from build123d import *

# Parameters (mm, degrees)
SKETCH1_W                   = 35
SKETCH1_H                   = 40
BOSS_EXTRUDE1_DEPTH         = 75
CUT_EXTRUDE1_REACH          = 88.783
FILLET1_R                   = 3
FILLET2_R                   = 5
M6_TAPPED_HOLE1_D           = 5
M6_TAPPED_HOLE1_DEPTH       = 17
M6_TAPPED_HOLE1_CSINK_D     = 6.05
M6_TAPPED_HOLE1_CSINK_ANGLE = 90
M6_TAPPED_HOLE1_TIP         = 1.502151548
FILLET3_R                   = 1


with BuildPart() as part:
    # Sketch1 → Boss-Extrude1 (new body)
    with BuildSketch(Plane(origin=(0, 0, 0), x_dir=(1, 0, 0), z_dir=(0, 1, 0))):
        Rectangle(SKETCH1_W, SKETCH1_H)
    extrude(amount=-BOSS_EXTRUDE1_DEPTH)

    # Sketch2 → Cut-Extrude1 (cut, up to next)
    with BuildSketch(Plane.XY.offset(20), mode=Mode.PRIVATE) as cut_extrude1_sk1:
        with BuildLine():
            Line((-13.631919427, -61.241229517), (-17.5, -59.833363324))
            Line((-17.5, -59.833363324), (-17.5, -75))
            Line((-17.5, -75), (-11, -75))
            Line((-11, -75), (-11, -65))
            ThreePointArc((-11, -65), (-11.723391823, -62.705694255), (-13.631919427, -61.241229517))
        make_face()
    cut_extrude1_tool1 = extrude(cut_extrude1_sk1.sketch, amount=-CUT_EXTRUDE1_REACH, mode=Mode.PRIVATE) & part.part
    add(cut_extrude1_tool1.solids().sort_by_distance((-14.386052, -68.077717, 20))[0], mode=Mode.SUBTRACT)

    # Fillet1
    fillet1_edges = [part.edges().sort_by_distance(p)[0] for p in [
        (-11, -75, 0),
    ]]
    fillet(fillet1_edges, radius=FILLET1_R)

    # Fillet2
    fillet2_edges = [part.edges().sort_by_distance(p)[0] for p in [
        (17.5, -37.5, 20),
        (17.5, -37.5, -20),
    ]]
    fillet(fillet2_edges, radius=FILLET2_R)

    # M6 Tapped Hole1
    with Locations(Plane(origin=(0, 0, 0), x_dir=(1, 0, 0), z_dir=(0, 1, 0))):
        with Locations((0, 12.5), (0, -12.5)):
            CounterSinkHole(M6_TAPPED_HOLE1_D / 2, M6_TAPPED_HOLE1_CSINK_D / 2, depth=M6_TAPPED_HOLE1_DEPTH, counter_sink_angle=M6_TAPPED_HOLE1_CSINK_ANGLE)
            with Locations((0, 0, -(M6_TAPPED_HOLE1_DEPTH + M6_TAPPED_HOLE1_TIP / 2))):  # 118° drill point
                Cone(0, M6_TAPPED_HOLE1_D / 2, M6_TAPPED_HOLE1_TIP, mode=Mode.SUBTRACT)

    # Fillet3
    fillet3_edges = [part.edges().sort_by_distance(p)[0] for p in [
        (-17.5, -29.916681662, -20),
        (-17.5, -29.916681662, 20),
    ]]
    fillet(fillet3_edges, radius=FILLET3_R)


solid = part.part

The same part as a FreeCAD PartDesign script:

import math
import FreeCAD as App
import Part
import Sketcher

V = App.Vector
Q = App.Units.Quantity


def edges_at(feature, points):
    """Names of the edges that pass closest to the given points."""
    edges = feature.Shape.Edges
    near = lambda p: min(range(len(edges)), key=lambda i: edges[i].distToShape(Part.Vertex(*p))[0])
    return sorted({f"Edge{near(p) + 1}" for p in points})

doc = App.newDocument("Part")
body = doc.addObject("PartDesign::Body", "Body")

# Sketch on XZ plane
sketch1 = body.newObject("Sketcher::SketchObject", "Sketch")
sketch1.AttachmentSupport = (doc.getObject("XZ_Plane"), [""])
sketch1.MapMode = "FlatFace"
sketch1.addGeometry(Part.LineSegment(V(-18, -20, 0), V(-18, 20, 0)), False)
sketch1.addGeometry(Part.LineSegment(V(-18, 20, 0), V(18, 20, 0)), False)
sketch1.addGeometry(Part.LineSegment(V(18, 20, 0), V(18, -20, 0)), False)
sketch1.addGeometry(Part.LineSegment(V(18, -20, 0), V(-18, -20, 0)), False)
sketch1.addConstraint(Sketcher.Constraint("Coincident", 0, 2, 1, 1))
sketch1.addConstraint(Sketcher.Constraint("Coincident", 1, 2, 2, 1))
sketch1.addConstraint(Sketcher.Constraint("Coincident", 2, 2, 3, 1))
sketch1.addConstraint(Sketcher.Constraint("Coincident", 3, 2, 0, 1))
sketch1.addConstraint(Sketcher.Constraint("Vertical", 0))
sketch1.addConstraint(Sketcher.Constraint("Horizontal", 1))
sketch1.addConstraint(Sketcher.Constraint("Vertical", 2))
sketch1.addConstraint(Sketcher.Constraint("Horizontal", 3))
sketch1.addConstraint(Sketcher.Constraint("Symmetric", 0, 2, 2, 2, -1, 1))
sketch1.addConstraint(Sketcher.Constraint("DistanceX", 1, 1, 1, 2, Q("35 mm")))
sketch1.addConstraint(Sketcher.Constraint("DistanceY", 0, 1, 0, 2, Q("40 mm")))
pad1 = body.newObject("PartDesign::Pad", "Pad")
pad1.Profile = sketch1
pad1.Length = 75

# Sketch on XY plane
sketch2 = body.newObject("Sketcher::SketchObject", "Sketch001")
sketch2.AttachmentSupport = (doc.getObject("XY_Plane"), [""])
sketch2.MapMode = "FlatFace"
sketch2.AttachmentOffset = App.Placement(V(0, 0, 20), App.Rotation())
sketch2.addGeometry(Part.LineSegment(V(-13.6, -61.2, 0), V(-17.5, -59.8, 0)), False)
sketch2.addGeometry(Part.LineSegment(V(-17.5, -59.8, 0), V(-17.5, -75, 0)), False)
sketch2.addGeometry(Part.LineSegment(V(-17.5, -75, 0), V(-11, -75, 0)), False)
sketch2.addGeometry(Part.LineSegment(V(-11, -75, 0), V(-11, -65, 0)), False)
sketch2.addGeometry(Part.ArcOfCircle(Part.Circle(V(-15, -65, 0), V(0, 0, 1), 4), math.radians(0), math.radians(70)), False)
sketch2.addConstraint(Sketcher.Constraint("Coincident", 0, 2, 1, 1))
sketch2.addConstraint(Sketcher.Constraint("Coincident", 1, 2, 2, 1))
sketch2.addConstraint(Sketcher.Constraint("Coincident", 2, 2, 3, 1))
sketch2.addConstraint(Sketcher.Constraint("Tangent", 3, 2, 4, 1))
sketch2.addConstraint(Sketcher.Constraint("Tangent", 4, 2, 0, 1))
sketch2.addConstraint(Sketcher.Constraint("Vertical", 1))
sketch2.addConstraint(Sketcher.Constraint("Horizontal", 2))
sketch2.addConstraint(Sketcher.Constraint("Vertical", 3))
sketch2.addConstraint(Sketcher.Constraint("Radius", 4, Q("4 mm")))
sketch2.addConstraint(Sketcher.Constraint("DistanceY", 3, 1, 3, 2, Q("10 mm")))
sketch2.addConstraint(Sketcher.Constraint("Angle", 0, Q("160 deg")))
sketch2.addConstraint(Sketcher.Constraint("DistanceX", 2, 1, 2, 2, Q("6.5 mm")))
sketch2.addConstraint(Sketcher.Constraint("DistanceX", 4, 3, -1, 1, Q("15 mm")))
sketch2.addConstraint(Sketcher.Constraint("DistanceY", 4, 3, -1, 1, Q("65 mm")))
pocket1 = body.newObject("PartDesign::Pocket", "Pocket")
pocket1.Profile = sketch2
pocket1.Type = "UpToFirst"
doc.recompute()

fillet = body.newObject("PartDesign::Fillet", "Fillet")
fillet.Base = (pocket1, edges_at(pocket1, [(-11, -75, 0)]))
fillet.Radius = 3
doc.recompute()

fillet2 = body.newObject("PartDesign::Fillet", "Fillet001")
fillet2.Base = (fillet, edges_at(fillet, [(17.5, -37.5, 20), (17.5, -37.5, -20)]))
fillet2.Radius = 5

# Sketch on XZ plane
sketch3 = body.newObject("Sketcher::SketchObject", "Sketch002")
sketch3.AttachmentSupport = (doc.getObject("XZ_Plane"), [""])
sketch3.MapMode = "FlatFace"
sketch3.addGeometry(Part.Circle(V(0, -12.5, 0), V(0, 0, 1), 2.5), False)
sketch3.addGeometry(Part.Circle(V(0, 12.5, 0), V(0, 0, 1), 2.5), False)
sketch3.addConstraint(Sketcher.Constraint("Equal", 0, 1))
sketch3.addConstraint(Sketcher.Constraint("Symmetric", 0, 3, 1, 3, -1, 1))
sketch3.addConstraint(Sketcher.Constraint("PointOnObject", 0, 3, -2))
sketch3.addConstraint(Sketcher.Constraint("Diameter", 0, Q("5 mm")))
sketch3.addConstraint(Sketcher.Constraint("DistanceY", 0, 3, 1, 3, Q("25 mm")))
doc.recompute()
hole = body.newObject("PartDesign::Hole", "Hole")
hole.Profile = sketch3
hole.ThreadType = "None"
hole.Diameter = 5
hole.DepthType = "Dimension"
hole.Depth = 17
hole.DrillPoint = "Angled"
hole.DrillPointAngle = 118
hole.HoleCutType = "Countersink"
hole.HoleCutDiameter = 6.05
hole.HoleCutCountersinkAngle = 90
hole.Reversed = True
doc.recompute()

fillet3 = body.newObject("PartDesign::Fillet", "Fillet002")
fillet3.Base = (hole, edges_at(hole, [(-17.5, -29.917, -20), (-17.5, -29.917, 20)]))
fillet3.Radius = 1

doc.recompute()
